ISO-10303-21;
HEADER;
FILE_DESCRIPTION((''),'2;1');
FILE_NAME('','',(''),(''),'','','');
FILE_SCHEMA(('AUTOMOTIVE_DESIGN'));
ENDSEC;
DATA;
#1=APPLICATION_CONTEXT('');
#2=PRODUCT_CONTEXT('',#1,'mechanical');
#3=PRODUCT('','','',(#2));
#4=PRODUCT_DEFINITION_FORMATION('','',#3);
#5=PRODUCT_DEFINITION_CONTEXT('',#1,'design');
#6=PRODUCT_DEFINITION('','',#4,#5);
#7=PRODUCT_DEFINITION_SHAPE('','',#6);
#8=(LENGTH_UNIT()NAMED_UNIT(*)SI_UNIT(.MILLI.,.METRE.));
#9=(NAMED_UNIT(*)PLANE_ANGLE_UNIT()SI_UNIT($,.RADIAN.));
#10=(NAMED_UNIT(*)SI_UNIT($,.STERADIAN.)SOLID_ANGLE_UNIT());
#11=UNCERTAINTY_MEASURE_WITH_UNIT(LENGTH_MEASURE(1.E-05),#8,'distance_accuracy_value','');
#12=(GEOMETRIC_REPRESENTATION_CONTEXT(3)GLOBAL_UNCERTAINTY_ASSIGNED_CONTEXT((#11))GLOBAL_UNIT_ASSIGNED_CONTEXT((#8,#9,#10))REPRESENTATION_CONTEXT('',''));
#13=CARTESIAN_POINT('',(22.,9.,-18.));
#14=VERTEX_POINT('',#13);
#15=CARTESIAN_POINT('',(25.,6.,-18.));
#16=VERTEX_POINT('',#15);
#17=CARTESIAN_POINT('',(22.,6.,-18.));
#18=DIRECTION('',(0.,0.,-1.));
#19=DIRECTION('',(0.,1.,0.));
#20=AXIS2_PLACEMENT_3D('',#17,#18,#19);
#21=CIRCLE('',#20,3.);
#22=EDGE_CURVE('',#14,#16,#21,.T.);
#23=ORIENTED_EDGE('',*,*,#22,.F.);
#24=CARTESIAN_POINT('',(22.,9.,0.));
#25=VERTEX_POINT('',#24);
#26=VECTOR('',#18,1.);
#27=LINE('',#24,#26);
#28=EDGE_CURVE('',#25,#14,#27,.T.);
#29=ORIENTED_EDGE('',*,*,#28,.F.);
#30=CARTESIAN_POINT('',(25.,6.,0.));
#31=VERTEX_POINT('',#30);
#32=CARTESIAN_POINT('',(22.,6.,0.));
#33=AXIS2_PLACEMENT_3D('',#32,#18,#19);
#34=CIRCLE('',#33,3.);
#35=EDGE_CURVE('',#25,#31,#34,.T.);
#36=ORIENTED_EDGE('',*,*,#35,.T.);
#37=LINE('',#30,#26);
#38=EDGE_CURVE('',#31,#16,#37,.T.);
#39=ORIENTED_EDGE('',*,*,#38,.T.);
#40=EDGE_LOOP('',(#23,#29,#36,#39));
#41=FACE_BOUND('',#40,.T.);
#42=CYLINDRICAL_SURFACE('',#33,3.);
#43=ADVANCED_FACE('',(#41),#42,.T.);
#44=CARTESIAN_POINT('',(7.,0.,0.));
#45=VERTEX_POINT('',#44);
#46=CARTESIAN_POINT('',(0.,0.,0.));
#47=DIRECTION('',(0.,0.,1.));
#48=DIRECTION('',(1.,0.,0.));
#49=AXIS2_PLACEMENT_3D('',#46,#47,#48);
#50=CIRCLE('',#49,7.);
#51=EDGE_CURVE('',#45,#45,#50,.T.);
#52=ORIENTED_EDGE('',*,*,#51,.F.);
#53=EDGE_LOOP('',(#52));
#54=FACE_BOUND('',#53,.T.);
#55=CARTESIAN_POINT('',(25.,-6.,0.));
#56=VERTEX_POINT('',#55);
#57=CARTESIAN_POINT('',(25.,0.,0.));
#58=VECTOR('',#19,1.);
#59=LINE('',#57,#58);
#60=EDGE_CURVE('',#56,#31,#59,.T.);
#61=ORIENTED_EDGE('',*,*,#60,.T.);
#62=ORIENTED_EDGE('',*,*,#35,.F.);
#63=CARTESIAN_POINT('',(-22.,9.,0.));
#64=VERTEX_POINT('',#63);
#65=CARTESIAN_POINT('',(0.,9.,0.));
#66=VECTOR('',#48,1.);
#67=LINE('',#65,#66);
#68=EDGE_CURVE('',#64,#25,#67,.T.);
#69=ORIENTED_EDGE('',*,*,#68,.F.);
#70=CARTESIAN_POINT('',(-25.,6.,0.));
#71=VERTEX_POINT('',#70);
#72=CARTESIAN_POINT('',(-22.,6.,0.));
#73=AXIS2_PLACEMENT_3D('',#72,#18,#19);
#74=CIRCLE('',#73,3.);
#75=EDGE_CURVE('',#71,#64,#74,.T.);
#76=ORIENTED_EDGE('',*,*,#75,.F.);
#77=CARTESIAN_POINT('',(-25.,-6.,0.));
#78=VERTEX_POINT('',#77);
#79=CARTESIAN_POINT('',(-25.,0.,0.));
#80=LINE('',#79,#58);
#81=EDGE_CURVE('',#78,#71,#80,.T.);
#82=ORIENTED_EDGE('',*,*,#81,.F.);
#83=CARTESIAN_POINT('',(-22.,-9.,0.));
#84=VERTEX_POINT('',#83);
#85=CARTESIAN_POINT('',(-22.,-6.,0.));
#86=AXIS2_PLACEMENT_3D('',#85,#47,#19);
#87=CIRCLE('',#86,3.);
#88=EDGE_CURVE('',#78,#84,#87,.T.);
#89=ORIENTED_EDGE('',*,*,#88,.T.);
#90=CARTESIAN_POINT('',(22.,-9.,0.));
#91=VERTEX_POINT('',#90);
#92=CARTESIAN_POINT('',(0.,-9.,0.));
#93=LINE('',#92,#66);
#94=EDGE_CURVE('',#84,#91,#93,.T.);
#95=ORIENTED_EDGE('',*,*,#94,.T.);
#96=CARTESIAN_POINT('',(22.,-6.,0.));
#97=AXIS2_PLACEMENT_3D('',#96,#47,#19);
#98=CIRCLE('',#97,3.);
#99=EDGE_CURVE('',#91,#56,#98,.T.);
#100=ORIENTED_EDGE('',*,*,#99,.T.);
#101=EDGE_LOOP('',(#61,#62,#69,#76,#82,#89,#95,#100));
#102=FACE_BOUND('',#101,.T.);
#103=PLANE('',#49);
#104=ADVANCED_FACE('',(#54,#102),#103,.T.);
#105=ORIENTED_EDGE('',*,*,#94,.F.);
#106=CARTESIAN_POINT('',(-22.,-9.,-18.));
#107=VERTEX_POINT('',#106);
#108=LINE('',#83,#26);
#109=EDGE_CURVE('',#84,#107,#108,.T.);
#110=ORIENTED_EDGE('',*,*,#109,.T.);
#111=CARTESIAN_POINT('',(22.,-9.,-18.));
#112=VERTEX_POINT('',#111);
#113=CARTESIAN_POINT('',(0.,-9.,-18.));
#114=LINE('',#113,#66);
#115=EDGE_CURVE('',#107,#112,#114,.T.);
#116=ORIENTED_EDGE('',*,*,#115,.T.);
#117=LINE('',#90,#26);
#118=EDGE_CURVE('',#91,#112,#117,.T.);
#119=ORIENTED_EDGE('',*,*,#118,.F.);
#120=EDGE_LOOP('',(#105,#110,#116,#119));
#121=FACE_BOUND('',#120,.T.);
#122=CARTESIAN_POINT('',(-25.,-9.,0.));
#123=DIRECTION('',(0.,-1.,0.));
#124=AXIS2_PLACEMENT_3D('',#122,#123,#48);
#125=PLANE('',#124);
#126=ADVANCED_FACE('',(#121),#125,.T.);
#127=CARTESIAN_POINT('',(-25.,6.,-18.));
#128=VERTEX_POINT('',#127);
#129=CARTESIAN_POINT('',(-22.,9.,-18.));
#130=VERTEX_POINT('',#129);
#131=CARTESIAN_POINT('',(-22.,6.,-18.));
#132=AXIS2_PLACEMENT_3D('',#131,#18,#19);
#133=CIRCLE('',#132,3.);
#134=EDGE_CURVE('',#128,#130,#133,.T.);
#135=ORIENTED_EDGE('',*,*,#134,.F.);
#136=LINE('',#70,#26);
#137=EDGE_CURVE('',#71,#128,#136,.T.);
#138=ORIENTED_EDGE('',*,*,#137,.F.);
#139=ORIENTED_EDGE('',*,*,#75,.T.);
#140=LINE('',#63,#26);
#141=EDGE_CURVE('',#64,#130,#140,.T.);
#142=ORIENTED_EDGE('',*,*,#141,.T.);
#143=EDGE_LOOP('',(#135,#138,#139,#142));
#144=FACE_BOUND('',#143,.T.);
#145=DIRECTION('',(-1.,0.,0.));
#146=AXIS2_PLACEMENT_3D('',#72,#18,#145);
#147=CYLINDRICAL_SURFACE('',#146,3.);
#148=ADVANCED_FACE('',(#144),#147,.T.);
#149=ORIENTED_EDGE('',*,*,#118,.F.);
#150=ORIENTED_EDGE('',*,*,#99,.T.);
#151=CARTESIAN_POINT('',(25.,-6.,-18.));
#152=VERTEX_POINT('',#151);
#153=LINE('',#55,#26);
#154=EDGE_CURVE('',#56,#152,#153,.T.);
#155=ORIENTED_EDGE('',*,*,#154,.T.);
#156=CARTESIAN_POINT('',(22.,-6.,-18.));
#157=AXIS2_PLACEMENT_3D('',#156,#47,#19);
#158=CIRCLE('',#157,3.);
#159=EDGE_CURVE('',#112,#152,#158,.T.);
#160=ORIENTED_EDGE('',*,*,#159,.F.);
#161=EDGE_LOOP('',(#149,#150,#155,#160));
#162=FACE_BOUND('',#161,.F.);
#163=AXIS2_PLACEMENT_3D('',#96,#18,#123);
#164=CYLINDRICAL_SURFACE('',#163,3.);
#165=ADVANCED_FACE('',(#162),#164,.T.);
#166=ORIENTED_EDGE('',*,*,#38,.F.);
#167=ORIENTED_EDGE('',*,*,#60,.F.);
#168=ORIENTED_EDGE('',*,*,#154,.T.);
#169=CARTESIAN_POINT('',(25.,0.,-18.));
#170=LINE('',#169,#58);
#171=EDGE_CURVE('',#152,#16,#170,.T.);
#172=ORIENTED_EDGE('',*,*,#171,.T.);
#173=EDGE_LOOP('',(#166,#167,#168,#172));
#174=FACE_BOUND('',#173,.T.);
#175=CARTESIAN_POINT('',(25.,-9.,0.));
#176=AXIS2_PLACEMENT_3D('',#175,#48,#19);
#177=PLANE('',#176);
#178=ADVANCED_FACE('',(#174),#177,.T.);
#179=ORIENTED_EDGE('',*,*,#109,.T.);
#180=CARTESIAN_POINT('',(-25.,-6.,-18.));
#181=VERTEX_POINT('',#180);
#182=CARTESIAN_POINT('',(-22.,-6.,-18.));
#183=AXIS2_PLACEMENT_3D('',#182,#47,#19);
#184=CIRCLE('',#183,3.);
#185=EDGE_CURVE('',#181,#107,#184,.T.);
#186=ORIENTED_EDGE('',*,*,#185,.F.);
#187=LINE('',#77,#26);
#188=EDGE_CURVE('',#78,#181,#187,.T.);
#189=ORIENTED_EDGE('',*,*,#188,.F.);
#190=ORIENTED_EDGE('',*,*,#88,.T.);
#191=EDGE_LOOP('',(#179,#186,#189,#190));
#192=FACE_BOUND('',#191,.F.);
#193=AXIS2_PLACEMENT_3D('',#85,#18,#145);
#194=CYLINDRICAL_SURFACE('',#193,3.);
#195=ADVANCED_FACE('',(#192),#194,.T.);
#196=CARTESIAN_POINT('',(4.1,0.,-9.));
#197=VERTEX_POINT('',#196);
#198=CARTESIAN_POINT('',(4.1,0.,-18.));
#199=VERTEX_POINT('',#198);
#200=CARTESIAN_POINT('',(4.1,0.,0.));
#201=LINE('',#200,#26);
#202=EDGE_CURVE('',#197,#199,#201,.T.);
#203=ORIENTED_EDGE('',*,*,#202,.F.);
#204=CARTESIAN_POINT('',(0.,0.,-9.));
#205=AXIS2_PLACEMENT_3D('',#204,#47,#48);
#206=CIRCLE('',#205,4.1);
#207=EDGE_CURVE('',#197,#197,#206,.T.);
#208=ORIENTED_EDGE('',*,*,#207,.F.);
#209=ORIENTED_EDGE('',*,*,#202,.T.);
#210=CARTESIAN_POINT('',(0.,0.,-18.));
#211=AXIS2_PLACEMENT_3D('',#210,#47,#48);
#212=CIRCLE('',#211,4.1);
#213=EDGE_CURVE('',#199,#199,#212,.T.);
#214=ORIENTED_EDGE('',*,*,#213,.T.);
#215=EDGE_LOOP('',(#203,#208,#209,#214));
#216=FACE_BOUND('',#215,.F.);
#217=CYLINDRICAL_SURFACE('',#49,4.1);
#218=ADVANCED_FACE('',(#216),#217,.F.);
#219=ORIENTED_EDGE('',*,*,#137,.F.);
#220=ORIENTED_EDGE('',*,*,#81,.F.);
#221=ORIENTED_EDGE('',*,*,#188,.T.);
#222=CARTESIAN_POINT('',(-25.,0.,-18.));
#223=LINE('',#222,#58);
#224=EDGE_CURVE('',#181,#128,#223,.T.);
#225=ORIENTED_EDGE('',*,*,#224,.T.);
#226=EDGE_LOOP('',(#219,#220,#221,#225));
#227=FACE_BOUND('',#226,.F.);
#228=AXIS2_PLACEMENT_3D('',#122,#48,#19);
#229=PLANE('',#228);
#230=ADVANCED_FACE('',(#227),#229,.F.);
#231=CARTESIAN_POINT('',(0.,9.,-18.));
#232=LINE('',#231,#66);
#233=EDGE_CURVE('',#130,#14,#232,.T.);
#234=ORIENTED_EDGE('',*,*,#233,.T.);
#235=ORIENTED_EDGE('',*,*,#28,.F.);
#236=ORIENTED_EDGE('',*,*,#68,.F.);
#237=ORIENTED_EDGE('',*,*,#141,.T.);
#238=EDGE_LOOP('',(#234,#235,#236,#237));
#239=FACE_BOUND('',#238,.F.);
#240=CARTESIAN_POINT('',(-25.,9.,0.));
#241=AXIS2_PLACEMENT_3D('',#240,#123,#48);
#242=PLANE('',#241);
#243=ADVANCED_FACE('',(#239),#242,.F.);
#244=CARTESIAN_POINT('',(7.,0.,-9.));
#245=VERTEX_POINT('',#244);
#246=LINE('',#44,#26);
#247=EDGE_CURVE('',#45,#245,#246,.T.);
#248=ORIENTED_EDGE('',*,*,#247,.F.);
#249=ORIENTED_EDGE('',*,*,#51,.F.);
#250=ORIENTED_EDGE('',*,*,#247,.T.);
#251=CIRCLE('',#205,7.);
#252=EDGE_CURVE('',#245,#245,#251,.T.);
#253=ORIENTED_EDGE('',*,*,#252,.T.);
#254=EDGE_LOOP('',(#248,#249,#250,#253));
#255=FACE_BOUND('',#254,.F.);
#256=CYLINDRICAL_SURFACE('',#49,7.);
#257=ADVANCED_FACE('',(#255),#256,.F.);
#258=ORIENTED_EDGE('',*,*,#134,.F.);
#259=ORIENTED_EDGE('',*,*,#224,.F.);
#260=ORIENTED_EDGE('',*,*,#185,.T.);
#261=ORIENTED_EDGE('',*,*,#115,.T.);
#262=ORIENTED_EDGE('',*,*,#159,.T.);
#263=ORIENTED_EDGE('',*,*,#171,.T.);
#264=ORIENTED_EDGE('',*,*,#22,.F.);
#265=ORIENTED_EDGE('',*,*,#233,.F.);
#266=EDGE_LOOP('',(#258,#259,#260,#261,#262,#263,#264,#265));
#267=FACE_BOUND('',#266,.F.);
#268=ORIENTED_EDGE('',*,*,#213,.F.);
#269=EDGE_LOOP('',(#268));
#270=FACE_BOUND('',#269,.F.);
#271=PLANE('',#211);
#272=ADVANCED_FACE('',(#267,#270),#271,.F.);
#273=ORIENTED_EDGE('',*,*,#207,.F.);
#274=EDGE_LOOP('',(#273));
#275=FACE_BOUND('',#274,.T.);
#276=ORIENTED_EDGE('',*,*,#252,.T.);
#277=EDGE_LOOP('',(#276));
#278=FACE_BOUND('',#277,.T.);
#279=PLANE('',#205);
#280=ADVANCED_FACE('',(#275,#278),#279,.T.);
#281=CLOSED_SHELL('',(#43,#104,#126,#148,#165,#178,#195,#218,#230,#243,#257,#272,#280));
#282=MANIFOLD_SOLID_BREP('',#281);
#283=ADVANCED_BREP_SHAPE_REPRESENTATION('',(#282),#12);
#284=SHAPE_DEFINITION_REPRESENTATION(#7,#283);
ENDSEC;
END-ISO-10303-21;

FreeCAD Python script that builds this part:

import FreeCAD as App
import Part
import Sketcher
from FreeCAD import Vector


def edges_at(feature, points):
    """Names of the edges that pass closest to the given points."""
    edges = feature.Shape.Edges
    near = lambda p: min(range(len(edges)), key=lambda i: edges[i].distToShape(Part.Vertex(*p))[0])
    return sorted({f"Edge{near(p) + 1}" for p in points})

doc = App.newDocument("Part")
params = doc.addObject("Spreadsheet::Sheet", "Params")
for row, (alias, value) in enumerate([
    ("sketch1_diameter", "8.2 mm"),
    ("sketch1_width", "50 mm"),
    ("sketch1_height", "18 mm"),
    ("pad1_length", "18 mm"),
    ("fillet_radius", "3 mm"),
    ("sketch2_diameter", "14 mm"),
    ("pocket1_length", "9 mm"),
], start=1):
    params.set(f"A{row}", alias)
    params.set(f"B{row}", "=" + value)
    params.setAlias(f"B{row}", alias)

body = doc.addObject("PartDesign::Body", "Body")

sketch1 = doc.addObject("Sketcher::SketchObject", "Sketch")
body.addObject(sketch1)
sketch1.AttachmentSupport = (doc.XY_Plane, [""])
sketch1.MapMode = "FlatFace"
sketch1.addGeometry([
    Part.LineSegment(Vector(-25, 9, 0), Vector(-25, -9, 0)),
    Part.LineSegment(Vector(-25, -9, 0), Vector(25, -9, 0)),
    Part.LineSegment(Vector(25, -9, 0), Vector(25, 9, 0)),
    Part.LineSegment(Vector(25, 9, 0), Vector(-25, 9, 0)),
    Part.Circle(Vector(0, 0, 0), Vector(0, 0, 1), 4.1),
], False)
sketch1.addConstraint([
    Sketcher.Constraint("Coincident", 0, 2, 1, 1),
    Sketcher.Constraint("Coincident", 1, 2, 2, 1),
    Sketcher.Constraint("Coincident", 2, 2, 3, 1),
    Sketcher.Constraint("Coincident", 3, 2, 0, 1),
    Sketcher.Constraint("Vertical", 0),
    Sketcher.Constraint("Horizontal", 1),
    Sketcher.Constraint("Vertical", 2),
    Sketcher.Constraint("Horizontal", 3),
    Sketcher.Constraint("Coincident", 4, 3, -1, 1),
    Sketcher.Constraint("Symmetric", 0, 2, 2, 2, -1, 1),
    Sketcher.Constraint("Diameter", 4, 8.2),
    Sketcher.Constraint("DistanceX", 1, 1, 1, 2, 50.0),
    Sketcher.Constraint("DistanceY", 0, 2, 0, 1, 18.0),
])
sketch1.setExpression("Constraints[10]", "Params.sketch1_diameter")
sketch1.setExpression("Constraints[11]", "Params.sketch1_width")
sketch1.setExpression("Constraints[12]", "Params.sketch1_height")
pad1 = doc.addObject("PartDesign::Pad", "Pad")
body.addObject(pad1)
pad1.Profile = sketch1
pad1.setExpression("Length", "Params.pad1_length")
pad1.Reversed = True
doc.recompute()

fillet = doc.addObject("PartDesign::Fillet", "Fillet")
body.addObject(fillet)
fillet.Base = (pad1, edges_at(pad1, [
    (25, -9, -9),
    (25, 9, -9),
    (-25, 9, -9),
    (-25, -9, -9),
]))
fillet.setExpression("Radius", "Params.fillet_radius")

sketch2 = doc.addObject("Sketcher::SketchObject", "Sketch001")
body.addObject(sketch2)
sketch2.AttachmentSupport = (doc.XY_Plane, [""])
sketch2.MapMode = "FlatFace"
sketch2.addGeometry(Part.Circle(Vector(0, 0, 0), Vector(0, 0, 1), 7), False)
sketch2.addConstraint([
    Sketcher.Constraint("Coincident", 0, 3, -1, 1),
    Sketcher.Constraint("Diameter", 0, 14.0),
])
sketch2.setExpression("Constraints[1]", "Params.sketch2_diameter")
pocket1 = doc.addObject("PartDesign::Pocket", "Pocket")
body.addObject(pocket1)
pocket1.Profile = sketch2
pocket1.setExpression("Length", "Params.pocket1_length")

doc.recompute()
